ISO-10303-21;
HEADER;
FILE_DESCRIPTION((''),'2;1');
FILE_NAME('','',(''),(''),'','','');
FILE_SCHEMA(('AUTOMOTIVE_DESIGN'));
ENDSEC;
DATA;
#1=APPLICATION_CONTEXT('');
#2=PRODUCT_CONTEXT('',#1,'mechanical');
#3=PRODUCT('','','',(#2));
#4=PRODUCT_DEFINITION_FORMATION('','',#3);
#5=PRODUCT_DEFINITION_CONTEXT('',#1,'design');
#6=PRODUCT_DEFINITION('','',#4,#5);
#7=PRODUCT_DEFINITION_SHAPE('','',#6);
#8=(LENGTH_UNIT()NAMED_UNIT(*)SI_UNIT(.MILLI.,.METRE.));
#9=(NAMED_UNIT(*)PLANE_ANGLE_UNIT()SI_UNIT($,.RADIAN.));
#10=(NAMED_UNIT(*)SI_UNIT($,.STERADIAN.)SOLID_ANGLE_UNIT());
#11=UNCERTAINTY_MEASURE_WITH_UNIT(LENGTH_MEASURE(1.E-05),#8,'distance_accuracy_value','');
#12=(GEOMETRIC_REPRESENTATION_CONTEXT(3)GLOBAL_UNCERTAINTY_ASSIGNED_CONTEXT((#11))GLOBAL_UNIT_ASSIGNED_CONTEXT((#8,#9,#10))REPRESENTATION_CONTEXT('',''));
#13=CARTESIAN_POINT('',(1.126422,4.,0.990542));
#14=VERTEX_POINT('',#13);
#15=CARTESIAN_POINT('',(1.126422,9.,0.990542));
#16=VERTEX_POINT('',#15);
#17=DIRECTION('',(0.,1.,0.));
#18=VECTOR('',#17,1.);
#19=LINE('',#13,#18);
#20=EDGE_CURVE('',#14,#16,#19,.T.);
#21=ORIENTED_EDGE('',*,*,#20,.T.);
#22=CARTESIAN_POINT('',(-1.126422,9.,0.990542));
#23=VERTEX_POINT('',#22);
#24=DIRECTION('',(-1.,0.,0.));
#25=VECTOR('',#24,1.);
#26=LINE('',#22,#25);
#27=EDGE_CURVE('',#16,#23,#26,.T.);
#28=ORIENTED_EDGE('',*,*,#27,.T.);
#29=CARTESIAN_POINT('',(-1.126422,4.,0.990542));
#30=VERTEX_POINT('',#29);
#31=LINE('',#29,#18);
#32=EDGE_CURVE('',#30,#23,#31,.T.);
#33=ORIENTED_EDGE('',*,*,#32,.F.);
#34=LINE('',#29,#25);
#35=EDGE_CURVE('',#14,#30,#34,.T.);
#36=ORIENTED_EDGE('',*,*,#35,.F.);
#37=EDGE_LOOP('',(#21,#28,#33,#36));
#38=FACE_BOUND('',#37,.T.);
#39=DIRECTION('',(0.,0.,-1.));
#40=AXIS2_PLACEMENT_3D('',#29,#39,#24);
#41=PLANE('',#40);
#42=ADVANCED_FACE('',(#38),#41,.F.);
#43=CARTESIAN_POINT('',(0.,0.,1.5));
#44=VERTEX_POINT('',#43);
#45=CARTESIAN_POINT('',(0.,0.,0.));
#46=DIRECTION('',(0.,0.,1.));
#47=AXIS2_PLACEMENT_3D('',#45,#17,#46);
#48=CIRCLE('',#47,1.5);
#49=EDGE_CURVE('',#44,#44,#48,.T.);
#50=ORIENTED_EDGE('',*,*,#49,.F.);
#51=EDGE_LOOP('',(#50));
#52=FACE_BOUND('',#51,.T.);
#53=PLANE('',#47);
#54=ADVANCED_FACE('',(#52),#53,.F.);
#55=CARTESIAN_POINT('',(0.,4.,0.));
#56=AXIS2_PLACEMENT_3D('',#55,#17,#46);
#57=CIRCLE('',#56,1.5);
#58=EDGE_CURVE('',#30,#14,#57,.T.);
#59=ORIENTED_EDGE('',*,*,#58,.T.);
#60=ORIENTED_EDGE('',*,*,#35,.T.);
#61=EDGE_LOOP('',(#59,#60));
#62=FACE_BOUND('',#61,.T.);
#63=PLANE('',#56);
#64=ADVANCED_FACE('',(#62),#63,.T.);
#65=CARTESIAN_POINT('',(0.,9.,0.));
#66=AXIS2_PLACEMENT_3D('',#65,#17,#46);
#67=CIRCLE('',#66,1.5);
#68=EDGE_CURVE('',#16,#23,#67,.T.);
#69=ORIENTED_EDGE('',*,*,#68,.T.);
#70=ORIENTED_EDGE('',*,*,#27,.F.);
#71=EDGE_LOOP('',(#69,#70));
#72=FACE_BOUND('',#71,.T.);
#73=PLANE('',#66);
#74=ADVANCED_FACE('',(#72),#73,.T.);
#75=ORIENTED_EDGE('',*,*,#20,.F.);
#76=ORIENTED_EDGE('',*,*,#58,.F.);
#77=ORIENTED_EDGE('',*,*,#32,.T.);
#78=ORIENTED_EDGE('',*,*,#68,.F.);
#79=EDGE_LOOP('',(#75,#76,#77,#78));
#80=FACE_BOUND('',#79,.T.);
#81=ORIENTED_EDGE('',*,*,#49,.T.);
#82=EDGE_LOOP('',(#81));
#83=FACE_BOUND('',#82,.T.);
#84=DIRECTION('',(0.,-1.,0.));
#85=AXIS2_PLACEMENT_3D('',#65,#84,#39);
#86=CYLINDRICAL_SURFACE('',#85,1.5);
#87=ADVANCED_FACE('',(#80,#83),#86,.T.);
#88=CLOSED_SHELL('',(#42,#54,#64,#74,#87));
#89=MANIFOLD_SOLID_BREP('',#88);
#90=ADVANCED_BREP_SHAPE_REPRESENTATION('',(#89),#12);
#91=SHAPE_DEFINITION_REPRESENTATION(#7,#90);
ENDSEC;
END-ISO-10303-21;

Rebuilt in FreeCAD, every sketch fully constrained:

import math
import FreeCAD as App
import Part
import Sketcher

V = App.Vector
Q = App.Units.Quantity

doc = App.newDocument("Part")
body = doc.addObject("PartDesign::Body", "Body")

# Sketch on XZ plane
sketch1 = body.newObject("Sketcher::SketchObject", "Sketch")
sketch1.AttachmentSupport = (doc.getObject("XZ_Plane"), [""])
sketch1.MapMode = "FlatFace"
sketch1.addGeometry(Part.Circle(V(0, 0, 0), V(0, 0, 1), 1.5), False)
sketch1.addConstraint([
    Sketcher.Constraint("Coincident", 0, 3, -1, 1),
    Sketcher.Constraint("Diameter", 0, Q("3 mm")),
])
pad1 = body.newObject("PartDesign::Pad", "Pad")
pad1.Profile = sketch1
pad1.Length = 9
pad1.Reversed = True

# Sketch on XZ plane
sketch2 = body.newObject("Sketcher::SketchObject", "Sketch001")
sketch2.AttachmentSupport = (doc.getObject("XZ_Plane"), [""])
sketch2.MapMode = "FlatFace"
sketch2.AttachmentOffset = App.Placement(V(0, 0, -4), App.Rotation())
sketch2.addGeometry([
    Part.LineSegment(V(1.1, 1, 0), V(-1.1, 1, 0)),
    Part.ArcOfCircle(Part.Circle(V(0, 0, 0), V(0, 0, 1), 1.5), math.radians(41), math.radians(139)),
], False)
sketch2.addConstraint([
    Sketcher.Constraint("Coincident", 0, 1, 1, 1),
    Sketcher.Constraint("Coincident", 1, 2, 0, 2),
    Sketcher.Constraint("Horizontal", 0),
    Sketcher.Constraint("Coincident", 1, 3, -1, 1),
    Sketcher.Constraint("Radius", 1, Q("1.5 mm")),
    Sketcher.Constraint("DistanceX", 0, 2, 0, 1, Q("2.252844 mm")),
])
pocket1 = body.newObject("PartDesign::Pocket", "Pocket")
pocket1.Profile = sketch2
pocket1.Length = 5

doc.recompute()
